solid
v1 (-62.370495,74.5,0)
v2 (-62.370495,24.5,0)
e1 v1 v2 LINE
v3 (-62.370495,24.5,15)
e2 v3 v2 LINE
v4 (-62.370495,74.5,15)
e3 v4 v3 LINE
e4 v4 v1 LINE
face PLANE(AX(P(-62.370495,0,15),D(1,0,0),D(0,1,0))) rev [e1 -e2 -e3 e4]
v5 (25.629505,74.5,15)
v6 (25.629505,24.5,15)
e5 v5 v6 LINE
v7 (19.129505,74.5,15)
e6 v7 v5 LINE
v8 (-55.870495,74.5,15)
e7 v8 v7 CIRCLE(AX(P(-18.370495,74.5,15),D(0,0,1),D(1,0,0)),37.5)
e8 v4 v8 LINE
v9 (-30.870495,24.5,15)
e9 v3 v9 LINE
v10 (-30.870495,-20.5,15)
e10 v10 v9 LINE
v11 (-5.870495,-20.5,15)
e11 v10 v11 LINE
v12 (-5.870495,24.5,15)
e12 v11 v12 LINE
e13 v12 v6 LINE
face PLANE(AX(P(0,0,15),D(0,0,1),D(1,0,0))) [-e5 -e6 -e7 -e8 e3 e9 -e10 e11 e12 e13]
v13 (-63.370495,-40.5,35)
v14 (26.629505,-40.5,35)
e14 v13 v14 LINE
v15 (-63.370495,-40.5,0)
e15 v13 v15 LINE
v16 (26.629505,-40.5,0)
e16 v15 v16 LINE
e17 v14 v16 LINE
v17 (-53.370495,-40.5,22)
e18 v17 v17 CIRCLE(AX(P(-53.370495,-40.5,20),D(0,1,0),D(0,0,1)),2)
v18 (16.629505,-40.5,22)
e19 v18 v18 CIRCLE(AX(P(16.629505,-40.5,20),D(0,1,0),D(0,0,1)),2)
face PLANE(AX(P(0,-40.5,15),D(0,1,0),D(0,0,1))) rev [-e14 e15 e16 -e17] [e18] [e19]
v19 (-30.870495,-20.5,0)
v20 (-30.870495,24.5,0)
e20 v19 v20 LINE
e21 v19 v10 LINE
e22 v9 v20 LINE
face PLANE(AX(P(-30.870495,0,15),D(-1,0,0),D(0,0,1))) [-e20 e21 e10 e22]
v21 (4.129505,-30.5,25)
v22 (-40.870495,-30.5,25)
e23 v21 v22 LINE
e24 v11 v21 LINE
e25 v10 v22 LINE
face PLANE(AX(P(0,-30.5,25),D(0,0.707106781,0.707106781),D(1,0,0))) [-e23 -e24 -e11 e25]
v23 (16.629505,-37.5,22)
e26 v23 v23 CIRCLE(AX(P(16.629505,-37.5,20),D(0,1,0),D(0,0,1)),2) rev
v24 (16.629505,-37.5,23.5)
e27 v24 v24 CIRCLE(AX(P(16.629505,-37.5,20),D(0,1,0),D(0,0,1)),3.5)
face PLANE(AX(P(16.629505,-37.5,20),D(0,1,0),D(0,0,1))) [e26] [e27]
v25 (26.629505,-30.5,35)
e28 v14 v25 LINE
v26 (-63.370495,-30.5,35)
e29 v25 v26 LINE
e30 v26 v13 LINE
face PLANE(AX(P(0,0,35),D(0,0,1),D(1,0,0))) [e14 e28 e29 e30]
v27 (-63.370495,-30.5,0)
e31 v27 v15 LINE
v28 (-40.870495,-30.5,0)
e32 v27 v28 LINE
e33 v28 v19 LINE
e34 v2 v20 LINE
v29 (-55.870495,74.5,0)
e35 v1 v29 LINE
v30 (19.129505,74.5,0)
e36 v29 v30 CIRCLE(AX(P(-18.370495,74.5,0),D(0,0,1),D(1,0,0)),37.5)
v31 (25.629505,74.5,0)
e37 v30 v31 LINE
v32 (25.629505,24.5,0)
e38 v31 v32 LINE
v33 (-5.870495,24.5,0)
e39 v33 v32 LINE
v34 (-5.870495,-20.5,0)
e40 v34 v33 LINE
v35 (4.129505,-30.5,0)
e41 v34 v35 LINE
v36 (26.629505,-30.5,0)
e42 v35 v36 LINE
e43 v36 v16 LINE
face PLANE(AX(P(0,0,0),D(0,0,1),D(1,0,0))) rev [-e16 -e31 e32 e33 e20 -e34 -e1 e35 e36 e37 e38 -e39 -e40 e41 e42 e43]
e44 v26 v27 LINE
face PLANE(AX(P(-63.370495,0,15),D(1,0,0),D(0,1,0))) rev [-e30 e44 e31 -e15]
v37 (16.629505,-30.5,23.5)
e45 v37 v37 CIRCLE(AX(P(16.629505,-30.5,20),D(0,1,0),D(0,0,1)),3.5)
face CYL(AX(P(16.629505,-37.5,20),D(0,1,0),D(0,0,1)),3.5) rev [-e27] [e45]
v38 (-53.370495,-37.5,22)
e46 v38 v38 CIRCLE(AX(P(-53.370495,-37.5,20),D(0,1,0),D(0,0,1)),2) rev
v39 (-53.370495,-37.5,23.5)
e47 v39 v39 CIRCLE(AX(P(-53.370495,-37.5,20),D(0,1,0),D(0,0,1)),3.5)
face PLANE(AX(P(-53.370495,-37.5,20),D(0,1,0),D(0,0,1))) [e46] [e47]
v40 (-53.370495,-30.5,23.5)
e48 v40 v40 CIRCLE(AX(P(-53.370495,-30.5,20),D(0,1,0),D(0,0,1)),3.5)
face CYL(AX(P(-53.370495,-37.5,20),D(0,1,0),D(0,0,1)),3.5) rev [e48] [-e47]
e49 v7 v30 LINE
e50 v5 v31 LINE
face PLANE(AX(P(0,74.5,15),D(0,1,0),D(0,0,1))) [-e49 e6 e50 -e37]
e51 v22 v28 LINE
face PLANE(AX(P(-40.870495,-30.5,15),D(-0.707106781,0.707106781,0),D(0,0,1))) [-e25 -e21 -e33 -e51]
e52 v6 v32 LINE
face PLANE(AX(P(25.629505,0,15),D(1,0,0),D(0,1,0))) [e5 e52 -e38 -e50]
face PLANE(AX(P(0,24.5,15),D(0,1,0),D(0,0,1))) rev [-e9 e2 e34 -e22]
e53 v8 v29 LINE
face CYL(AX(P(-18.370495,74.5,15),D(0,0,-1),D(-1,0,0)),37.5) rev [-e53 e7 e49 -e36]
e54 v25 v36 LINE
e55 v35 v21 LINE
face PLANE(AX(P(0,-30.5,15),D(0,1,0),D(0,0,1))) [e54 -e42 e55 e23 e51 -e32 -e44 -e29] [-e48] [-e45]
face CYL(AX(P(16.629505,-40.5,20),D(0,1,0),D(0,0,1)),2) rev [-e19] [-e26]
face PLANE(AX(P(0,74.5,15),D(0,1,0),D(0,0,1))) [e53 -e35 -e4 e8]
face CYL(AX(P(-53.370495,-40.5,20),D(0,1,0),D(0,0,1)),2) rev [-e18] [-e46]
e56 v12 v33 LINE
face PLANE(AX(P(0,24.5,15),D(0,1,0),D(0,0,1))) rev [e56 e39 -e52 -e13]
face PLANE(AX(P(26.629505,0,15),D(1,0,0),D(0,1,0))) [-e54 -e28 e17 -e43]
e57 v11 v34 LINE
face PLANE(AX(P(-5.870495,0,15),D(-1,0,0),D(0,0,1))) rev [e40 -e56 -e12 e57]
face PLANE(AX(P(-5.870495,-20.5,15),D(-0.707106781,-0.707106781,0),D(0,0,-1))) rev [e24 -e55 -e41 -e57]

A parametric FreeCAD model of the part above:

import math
import FreeCAD as App
import Part
import Sketcher

V = App.Vector


def edges_at(feature, points):
    """Names of the edges that pass closest to the given points."""
    edges = feature.Shape.Edges
    near = lambda p: min(range(len(edges)), key=lambda i: edges[i].distToShape(Part.Vertex(*p))[0])
    return sorted({f"Edge{near(p) + 1}" for p in points})

doc = App.newDocument("Part")
body = doc.addObject("PartDesign::Body", "Body")

sketch1 = body.newObject("Sketcher::SketchObject", "Sketch")
sketch1.AttachmentSupport = (doc.getObject("XY_Plane"), [""])
sketch1.MapMode = "FlatFace"
sketch1.addGeometry([
    Part.LineSegment(V(-62.370495, 24.5, 0), V(-30.870495, 24.5, 0)),
    Part.LineSegment(V(-30.870495, 24.5, 0), V(-30.870495, -30.5, 0)),
    Part.LineSegment(V(-30.870495, -30.5, 0), V(-63.370495, -30.5, 0)),
    Part.LineSegment(V(-63.370495, -30.5, 0), V(-63.370495, -40.5, 0)),
    Part.LineSegment(V(-63.370495, -40.5, 0), V(26.629505, -40.5, 0)),
    Part.LineSegment(V(26.629505, -40.5, 0), V(26.629505, -30.5, 0)),
    Part.LineSegment(V(26.629505, -30.5, 0), V(-5.870495, -30.5, 0)),
    Part.LineSegment(V(-5.870495, -30.5, 0), V(-5.870495, 24.5, 0)),
    Part.LineSegment(V(-5.870495, 24.5, 0), V(25.629505, 24.5, 0)),
    Part.LineSegment(V(25.629505, 24.5, 0), V(25.629505, 74.5, 0)),
    Part.LineSegment(V(25.629505, 74.5, 0), V(19.129505, 74.5, 0)),
    Part.ArcOfCircle(Part.Circle(V(-18.370495, 74.5, 0), V(0, 0, 1), 37.5), math.radians(180), math.radians(360)),
    Part.LineSegment(V(-55.870495, 74.5, 0), V(-62.370495, 74.5, 0)),
    Part.LineSegment(V(-62.370495, 74.5, 0), V(-62.370495, 24.5, 0)),
], False)
sketch1.addConstraint([
    Sketcher.Constraint("Coincident", 0, 2, 1, 1),
    Sketcher.Constraint("Coincident", 1, 2, 2, 1),
    Sketcher.Constraint("Coincident", 2, 2, 3, 1),
    Sketcher.Constraint("Coincident", 3, 2, 4, 1),
    Sketcher.Constraint("Coincident", 4, 2, 5, 1),
    Sketcher.Constraint("Coincident", 5, 2, 6, 1),
    Sketcher.Constraint("Coincident", 6, 2, 7, 1),
    Sketcher.Constraint("Coincident", 7, 2, 8, 1),
    Sketcher.Constraint("Coincident", 8, 2, 9, 1),
    Sketcher.Constraint("Coincident", 9, 2, 10, 1),
    Sketcher.Constraint("Coincident", 10, 2, 11, 2),
    Sketcher.Constraint("Coincident", 11, 1, 12, 1),
    Sketcher.Constraint("Coincident", 12, 2, 13, 1),
    Sketcher.Constraint("Coincident", 13, 2, 0, 1),
    Sketcher.Constraint("Horizontal", 0),
    Sketcher.Constraint("Vertical", 1),
    Sketcher.Constraint("Horizontal", 2),
    Sketcher.Constraint("Vertical", 3),
    Sketcher.Constraint("Horizontal", 4),
    Sketcher.Constraint("Vertical", 5),
    Sketcher.Constraint("Horizontal", 6),
    Sketcher.Constraint("Vertical", 7),
    Sketcher.Constraint("Horizontal", 8),
    Sketcher.Constraint("Vertical", 9),
    Sketcher.Constraint("Horizontal", 10),
    Sketcher.Constraint("Horizontal", 12),
    Sketcher.Constraint("Vertical", 13),
    Sketcher.Constraint("Horizontal", 2, 2, 5, 2),
    Sketcher.Constraint("Horizontal", 0, 2, 7, 2),
    Sketcher.Constraint("Horizontal", 11, 3, 9, 2),
    Sketcher.Constraint("Horizontal", 10, 2, 11, 1),
    Sketcher.Constraint("Equal", 2, 6),
    Sketcher.Constraint("Equal", 0, 8),
    Sketcher.Constraint("Equal", 10, 12),
    Sketcher.Constraint("Radius", 11, 37.5),
    Sketcher.Constraint("DistanceX", 4, 1, 4, 2, 90.0),
    Sketcher.Constraint("DistanceY", 1, 2, 1, 1, 55.0),
    Sketcher.Constraint("DistanceY", 3, 2, 3, 1, 10.0),
    Sketcher.Constraint("DistanceY", 9, 1, 9, 2, 50.0),
    Sketcher.Constraint("DistanceX", 0, 1, 0, 2, 31.5),
    Sketcher.Constraint("DistanceX", 2, 2, 2, 1, 32.5),
    Sketcher.Constraint("DistanceY", -1, 1, 11, 3, 74.5),
    Sketcher.Constraint("DistanceX", 11, 3, -1, 1, 18.370495),
])
pad1 = body.newObject("PartDesign::Pad", "Pad")
pad1.Profile = sketch1
pad1.Length = 15

sketch2 = body.newObject("Sketcher::SketchObject", "Sketch001")
sketch2.AttachmentSupport = (doc.getObject("XY_Plane"), [""])
sketch2.MapMode = "FlatFace"
sketch2.AttachmentOffset = App.Placement(V(0, 0, 15), App.Rotation())
sketch2.addGeometry([
    Part.LineSegment(V(-63.370495, -30.5, 0), V(-63.370495, -40.5, 0)),
    Part.LineSegment(V(-63.370495, -40.5, 0), V(26.629505, -40.5, 0)),
    Part.LineSegment(V(26.629505, -40.5, 0), V(26.629505, -30.5, 0)),
    Part.LineSegment(V(26.629505, -30.5, 0), V(-63.370495, -30.5, 0)),
], False)
sketch2.addConstraint([
    Sketcher.Constraint("Coincident", 0, 2, 1, 1),
    Sketcher.Constraint("Coincident", 1, 2, 2, 1),
    Sketcher.Constraint("Coincident", 2, 2, 3, 1),
    Sketcher.Constraint("Coincident", 3, 2, 0, 1),
    Sketcher.Constraint("Vertical", 0),
    Sketcher.Constraint("Horizontal", 1),
    Sketcher.Constraint("Vertical", 2),
    Sketcher.Constraint("Horizontal", 3),
    Sketcher.Constraint("DistanceX", 1, 1, 1, 2, 90.0),
    Sketcher.Constraint("DistanceY", 0, 2, 0, 1, 10.0),
    Sketcher.Constraint("DistanceY", 0, 2, -1, 1, 40.5),
    Sketcher.Constraint("DistanceX", 0, 2, -1, 1, 63.370495),
])
pad2 = body.newObject("PartDesign::Pad", "Pad001")
pad2.Profile = sketch2
pad2.Length = 20
doc.recompute()

chamfer = body.newObject("PartDesign::Chamfer", "Chamfer")
chamfer.Base = (pad2, edges_at(pad2, [(-5.87, -30.5, 7.5), (-30.87, -30.5, 7.5), (-18.37, -30.5, 15)]))
chamfer.Size = 10

sketch3 = body.newObject("Sketcher::SketchObject", "Sketch002")
sketch3.AttachmentSupport = (doc.getObject("XZ_Plane"), [""])
sketch3.MapMode = "FlatFace"
sketch3.AttachmentOffset = App.Placement(V(0, 0, 30.5), App.Rotation())
sketch3.addGeometry([
    Part.Circle(V(-53.370495, 20, 0), V(0, 0, 1), 2),
    Part.Circle(V(16.629505, 20, 0), V(0, 0, 1), 2),
], False)
sketch3.addConstraint([
    Sketcher.Constraint("Equal", 0, 1),
    Sketcher.Constraint("Horizontal", 0, 3, 1, 3),
    Sketcher.Constraint("Diameter", 0, 4.0),
    Sketcher.Constraint("DistanceY", -1, 1, 0, 3, 20.0),
    Sketcher.Constraint("DistanceX", 0, 3, 1, 3, 70.0),
    Sketcher.Constraint("DistanceX", 0, 3, -1, 1, 53.370495),
])
pocket1 = body.newObject("PartDesign::Pocket", "Pocket")
pocket1.Profile = sketch3
pocket1.Type = "ThroughAll"
pocket1.Reversed = True

sketch4 = body.newObject("Sketcher::SketchObject", "Sketch003")
sketch4.AttachmentSupport = (doc.getObject("XZ_Plane"), [""])
sketch4.MapMode = "FlatFace"
sketch4.AttachmentOffset = App.Placement(V(0, 0, 30.5), App.Rotation())
sketch4.addGeometry([
    Part.Circle(V(-53.370495, 20, 0), V(0, 0, 1), 3.5),
    Part.Circle(V(16.629505, 20, 0), V(0, 0, 1), 3.5),
], False)
sketch4.addConstraint([
    Sketcher.Constraint("Equal", 0, 1),
    Sketcher.Constraint("Horizontal", 0, 3, 1, 3),
    Sketcher.Constraint("Diameter", 0, 7.0),
    Sketcher.Constraint("DistanceY", -1, 1, 0, 3, 20.0),
    Sketcher.Constraint("DistanceX", 0, 3, 1, 3, 70.0),
    Sketcher.Constraint("DistanceX", 0, 3, -1, 1, 53.370495),
])
pocket2 = body.newObject("PartDesign::Pocket", "Pocket001")
pocket2.Profile = sketch4
pocket2.Length = 7
pocket2.Reversed = True

doc.recompute()
